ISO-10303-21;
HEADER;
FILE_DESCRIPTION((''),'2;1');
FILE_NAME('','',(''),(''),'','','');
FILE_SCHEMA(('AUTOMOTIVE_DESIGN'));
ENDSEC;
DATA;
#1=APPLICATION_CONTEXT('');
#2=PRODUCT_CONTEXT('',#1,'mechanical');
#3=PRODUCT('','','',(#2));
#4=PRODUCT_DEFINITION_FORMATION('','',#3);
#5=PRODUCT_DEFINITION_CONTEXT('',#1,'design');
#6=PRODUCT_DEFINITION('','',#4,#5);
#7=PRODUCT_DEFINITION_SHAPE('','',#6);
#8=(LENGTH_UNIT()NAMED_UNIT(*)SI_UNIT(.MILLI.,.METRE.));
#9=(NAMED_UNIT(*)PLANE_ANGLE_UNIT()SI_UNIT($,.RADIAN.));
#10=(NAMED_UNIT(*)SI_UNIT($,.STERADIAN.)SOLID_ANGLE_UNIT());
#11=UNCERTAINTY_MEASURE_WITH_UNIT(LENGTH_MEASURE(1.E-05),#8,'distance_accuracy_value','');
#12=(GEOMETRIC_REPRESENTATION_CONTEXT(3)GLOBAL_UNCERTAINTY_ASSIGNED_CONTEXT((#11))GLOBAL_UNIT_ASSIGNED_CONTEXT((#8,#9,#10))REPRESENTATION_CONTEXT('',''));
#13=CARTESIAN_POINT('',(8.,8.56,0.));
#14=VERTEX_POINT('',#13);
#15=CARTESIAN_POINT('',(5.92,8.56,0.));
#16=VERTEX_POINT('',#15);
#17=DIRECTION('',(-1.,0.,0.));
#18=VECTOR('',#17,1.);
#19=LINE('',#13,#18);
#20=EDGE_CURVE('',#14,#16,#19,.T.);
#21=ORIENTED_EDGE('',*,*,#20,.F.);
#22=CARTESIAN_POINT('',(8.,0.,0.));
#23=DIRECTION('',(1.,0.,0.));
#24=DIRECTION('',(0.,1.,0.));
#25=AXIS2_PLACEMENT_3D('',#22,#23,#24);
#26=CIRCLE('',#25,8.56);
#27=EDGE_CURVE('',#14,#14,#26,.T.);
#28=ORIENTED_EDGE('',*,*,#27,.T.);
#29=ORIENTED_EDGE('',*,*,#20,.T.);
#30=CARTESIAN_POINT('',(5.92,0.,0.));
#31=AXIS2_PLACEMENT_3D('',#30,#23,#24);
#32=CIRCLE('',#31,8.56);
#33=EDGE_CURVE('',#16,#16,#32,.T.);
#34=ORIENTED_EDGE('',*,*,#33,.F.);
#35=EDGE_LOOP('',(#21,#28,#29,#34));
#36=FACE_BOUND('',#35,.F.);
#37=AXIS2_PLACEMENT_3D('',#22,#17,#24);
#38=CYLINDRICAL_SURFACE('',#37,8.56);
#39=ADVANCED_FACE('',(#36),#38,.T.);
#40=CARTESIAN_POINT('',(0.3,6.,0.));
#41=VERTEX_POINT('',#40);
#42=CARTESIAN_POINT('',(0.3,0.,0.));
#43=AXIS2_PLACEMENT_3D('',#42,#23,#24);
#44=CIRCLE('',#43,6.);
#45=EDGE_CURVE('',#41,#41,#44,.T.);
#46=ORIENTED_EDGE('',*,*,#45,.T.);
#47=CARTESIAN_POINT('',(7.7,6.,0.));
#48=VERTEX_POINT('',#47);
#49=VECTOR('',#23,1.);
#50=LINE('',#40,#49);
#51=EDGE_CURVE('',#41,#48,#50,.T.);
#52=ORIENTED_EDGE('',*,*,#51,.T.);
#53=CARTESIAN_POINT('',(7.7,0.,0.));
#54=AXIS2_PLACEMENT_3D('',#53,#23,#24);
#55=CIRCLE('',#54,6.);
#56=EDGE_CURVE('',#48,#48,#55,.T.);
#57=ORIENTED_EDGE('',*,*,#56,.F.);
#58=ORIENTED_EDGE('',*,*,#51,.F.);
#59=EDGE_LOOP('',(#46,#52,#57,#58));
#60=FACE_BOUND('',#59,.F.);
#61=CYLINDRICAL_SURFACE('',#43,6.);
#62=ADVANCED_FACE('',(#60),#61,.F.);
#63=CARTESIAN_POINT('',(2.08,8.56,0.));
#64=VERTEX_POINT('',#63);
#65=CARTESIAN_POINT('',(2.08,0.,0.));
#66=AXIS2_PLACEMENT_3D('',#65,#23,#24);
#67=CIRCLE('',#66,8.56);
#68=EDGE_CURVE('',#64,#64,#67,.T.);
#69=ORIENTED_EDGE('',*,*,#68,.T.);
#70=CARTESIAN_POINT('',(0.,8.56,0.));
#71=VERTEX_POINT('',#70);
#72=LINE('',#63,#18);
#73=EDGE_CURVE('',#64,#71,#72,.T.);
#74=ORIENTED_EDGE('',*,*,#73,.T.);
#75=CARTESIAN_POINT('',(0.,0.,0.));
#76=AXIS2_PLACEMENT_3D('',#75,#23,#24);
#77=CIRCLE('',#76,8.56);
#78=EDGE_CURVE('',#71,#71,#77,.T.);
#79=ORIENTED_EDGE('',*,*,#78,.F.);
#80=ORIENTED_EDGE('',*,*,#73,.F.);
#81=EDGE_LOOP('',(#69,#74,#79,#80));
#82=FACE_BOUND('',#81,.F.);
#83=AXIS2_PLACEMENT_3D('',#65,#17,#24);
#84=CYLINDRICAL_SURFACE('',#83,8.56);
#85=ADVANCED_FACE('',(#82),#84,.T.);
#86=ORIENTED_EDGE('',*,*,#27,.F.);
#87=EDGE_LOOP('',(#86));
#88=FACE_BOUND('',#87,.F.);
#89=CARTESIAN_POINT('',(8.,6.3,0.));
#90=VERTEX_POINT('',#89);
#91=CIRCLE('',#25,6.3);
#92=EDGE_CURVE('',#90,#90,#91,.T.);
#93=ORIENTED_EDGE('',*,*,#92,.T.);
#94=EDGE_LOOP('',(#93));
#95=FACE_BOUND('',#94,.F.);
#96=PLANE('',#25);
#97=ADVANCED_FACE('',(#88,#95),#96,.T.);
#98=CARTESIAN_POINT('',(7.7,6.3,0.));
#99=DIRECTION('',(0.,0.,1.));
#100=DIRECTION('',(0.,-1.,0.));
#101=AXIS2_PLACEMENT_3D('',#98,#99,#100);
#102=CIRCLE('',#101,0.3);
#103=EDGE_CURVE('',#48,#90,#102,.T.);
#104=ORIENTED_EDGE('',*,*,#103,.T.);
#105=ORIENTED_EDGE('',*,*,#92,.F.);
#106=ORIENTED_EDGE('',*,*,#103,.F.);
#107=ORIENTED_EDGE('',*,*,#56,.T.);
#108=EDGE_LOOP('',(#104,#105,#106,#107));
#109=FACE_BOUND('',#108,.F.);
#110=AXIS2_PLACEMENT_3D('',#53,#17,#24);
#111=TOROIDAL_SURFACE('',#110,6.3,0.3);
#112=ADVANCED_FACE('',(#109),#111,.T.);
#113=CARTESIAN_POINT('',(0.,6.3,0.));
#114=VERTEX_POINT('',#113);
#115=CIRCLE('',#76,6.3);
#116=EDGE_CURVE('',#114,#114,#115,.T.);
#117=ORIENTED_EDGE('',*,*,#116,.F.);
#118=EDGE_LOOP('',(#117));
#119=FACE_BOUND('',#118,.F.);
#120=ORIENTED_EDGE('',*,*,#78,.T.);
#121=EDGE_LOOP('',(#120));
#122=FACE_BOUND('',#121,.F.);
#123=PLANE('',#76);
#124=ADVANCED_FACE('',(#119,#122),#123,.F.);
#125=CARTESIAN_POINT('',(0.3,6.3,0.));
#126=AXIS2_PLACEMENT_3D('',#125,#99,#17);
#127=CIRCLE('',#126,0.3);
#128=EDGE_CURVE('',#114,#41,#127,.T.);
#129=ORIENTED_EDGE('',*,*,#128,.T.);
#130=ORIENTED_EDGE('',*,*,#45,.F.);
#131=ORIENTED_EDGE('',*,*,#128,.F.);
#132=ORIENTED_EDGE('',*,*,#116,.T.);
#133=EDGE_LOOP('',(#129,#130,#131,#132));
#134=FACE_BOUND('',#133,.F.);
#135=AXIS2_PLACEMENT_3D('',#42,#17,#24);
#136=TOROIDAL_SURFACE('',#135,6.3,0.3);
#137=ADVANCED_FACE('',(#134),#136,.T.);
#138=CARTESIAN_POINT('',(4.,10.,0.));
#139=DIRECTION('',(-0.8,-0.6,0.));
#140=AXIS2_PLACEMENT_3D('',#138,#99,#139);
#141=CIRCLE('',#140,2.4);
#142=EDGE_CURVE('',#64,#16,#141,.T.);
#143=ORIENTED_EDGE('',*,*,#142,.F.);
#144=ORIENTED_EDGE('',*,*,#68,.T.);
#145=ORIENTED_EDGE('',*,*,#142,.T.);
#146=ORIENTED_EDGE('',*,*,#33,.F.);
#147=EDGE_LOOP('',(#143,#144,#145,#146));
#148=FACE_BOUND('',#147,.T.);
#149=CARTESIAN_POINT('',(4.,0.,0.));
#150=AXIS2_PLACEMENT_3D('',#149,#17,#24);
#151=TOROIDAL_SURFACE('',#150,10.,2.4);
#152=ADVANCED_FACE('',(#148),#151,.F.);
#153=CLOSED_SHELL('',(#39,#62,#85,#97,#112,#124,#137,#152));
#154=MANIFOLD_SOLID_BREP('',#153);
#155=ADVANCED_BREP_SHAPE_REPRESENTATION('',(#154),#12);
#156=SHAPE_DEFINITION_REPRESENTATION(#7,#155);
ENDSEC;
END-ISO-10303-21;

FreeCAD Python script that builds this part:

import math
import FreeCAD as App
import Part
import Sketcher

doc = App.newDocument("Part")
body = doc.addObject("PartDesign::Body", "Body")

sketch1 = body.newObject("Sketcher::SketchObject", "Sketch")
sketch1.AttachmentSupport = (doc.getObject("XY_Plane"), [""])
sketch1.MapMode = "FlatFace"
sketch1.addGeometry([
    Part.LineSegment(App.Vector(0, 8.56, 0), App.Vector(0, 6.3, 0)),
    Part.ArcOfCircle(Part.Circle(App.Vector(0.3, 6.3, 0), App.Vector(0, 0, 1), 0.3), math.radians(180), math.radians(270)),
    Part.LineSegment(App.Vector(0.3, 6, 0), App.Vector(7.7, 6, 0)),
    Part.ArcOfCircle(Part.Circle(App.Vector(7.7, 6.3, 0), App.Vector(0, 0, 1), 0.3), math.radians(-90), math.radians(0)),
    Part.LineSegment(App.Vector(8, 6.3, 0), App.Vector(8, 8.56, 0)),
    Part.LineSegment(App.Vector(8, 8.56, 0), App.Vector(5.92, 8.56, 0)),
    Part.ArcOfCircle(Part.Circle(App.Vector(4, 10, 0), App.Vector(0, 0, 1), 2.4), math.radians(-143), math.radians(-37)),
    Part.LineSegment(App.Vector(2.08, 8.56, 0), App.Vector(0, 8.56, 0)),
], False)
sketch1.addConstraint([
    Sketcher.Constraint("Tangent", 0, 2, 1, 1),
    Sketcher.Constraint("Tangent", 1, 2, 2, 1),
    Sketcher.Constraint("Tangent", 2, 2, 3, 1),
    Sketcher.Constraint("Tangent", 3, 2, 4, 1),
    Sketcher.Constraint("Coincident", 4, 2, 5, 1),
    Sketcher.Constraint("Coincident", 5, 2, 6, 2),
    Sketcher.Constraint("Coincident", 6, 1, 7, 1),
    Sketcher.Constraint("Coincident", 7, 2, 0, 1),
    Sketcher.Constraint("Vertical", 0),
    Sketcher.Constraint("Horizontal", 2),
    Sketcher.Constraint("Vertical", 4),
    Sketcher.Constraint("Horizontal", 5),
    Sketcher.Constraint("Horizontal", 7),
    Sketcher.Constraint("Equal", 1, 3),
    Sketcher.Constraint("PointOnObject", 0, 2, -2),
    Sketcher.Constraint("Horizontal", 5, 2, 6, 1),
    Sketcher.Constraint("Equal", 5, 7),
    Sketcher.Constraint("Radius", 1, 0.3),
    Sketcher.Constraint("Radius", 6, 2.4),
    Sketcher.Constraint("DistanceX", 2, 1, 2, 2, 7.4),
    Sketcher.Constraint("DistanceY", -1, 1, 6, 3, 10.0),
    Sketcher.Constraint("DistanceY", -1, 1, 1, 2, 6.0),
    Sketcher.Constraint("DistanceX", 5, 2, 5, 1, 2.08),
])
revolution = body.newObject("PartDesign::Revolution", "Revolution")
revolution.Profile = sketch1
revolution.ReferenceAxis = (sketch1, ["H_Axis"])
revolution.Angle = 360

doc.recompute()
